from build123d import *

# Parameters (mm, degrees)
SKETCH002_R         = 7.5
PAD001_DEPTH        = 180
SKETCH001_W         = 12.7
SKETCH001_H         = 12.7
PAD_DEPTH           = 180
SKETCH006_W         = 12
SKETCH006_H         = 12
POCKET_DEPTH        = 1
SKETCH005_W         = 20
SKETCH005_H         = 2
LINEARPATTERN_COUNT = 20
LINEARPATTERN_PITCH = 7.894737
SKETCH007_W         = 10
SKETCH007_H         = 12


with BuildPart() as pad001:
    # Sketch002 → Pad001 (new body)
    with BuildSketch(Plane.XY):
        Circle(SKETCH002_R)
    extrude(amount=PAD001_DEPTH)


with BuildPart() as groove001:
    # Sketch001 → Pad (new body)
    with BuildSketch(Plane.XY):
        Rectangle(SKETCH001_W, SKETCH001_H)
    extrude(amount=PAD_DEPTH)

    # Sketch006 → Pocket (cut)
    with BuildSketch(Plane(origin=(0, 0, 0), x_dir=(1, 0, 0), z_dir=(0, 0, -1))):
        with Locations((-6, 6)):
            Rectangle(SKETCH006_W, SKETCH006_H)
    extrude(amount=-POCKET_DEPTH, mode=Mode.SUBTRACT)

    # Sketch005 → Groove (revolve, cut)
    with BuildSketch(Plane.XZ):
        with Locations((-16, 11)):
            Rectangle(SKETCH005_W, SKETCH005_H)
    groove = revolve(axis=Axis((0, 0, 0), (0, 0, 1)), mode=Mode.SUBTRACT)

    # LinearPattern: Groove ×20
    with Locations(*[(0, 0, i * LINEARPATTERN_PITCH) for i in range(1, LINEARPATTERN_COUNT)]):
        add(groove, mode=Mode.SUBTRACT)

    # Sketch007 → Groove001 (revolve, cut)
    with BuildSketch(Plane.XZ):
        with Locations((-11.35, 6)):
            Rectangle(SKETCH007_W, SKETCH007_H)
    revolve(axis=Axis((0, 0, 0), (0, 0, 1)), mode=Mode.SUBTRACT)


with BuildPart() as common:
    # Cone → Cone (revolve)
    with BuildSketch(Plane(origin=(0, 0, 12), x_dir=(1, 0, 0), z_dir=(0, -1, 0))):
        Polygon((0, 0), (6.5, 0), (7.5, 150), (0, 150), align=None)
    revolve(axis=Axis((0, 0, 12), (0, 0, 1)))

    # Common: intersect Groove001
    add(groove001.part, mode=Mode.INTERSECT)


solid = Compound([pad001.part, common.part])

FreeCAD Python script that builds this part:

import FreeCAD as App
import Part
import Sketcher

doc = App.newDocument("Part")
body = doc.addObject("PartDesign::Body", "Body")

# Sketch on XY plane
sketch1 = body.newObject("Sketcher::SketchObject", "Sketch")
sketch1.AttachmentSupport = (doc.getObject("XY_Plane"), [""])
sketch1.MapMode = "FlatFace"
sketch1.addGeometry(Part.Circle(App.Vector(0, 0, 0), App.Vector(0, 0, 1), 7.5), False)
sketch1.addConstraint([
    Sketcher.Constraint("Coincident", 0, 3, -1, 1),
    Sketcher.Constraint("Diameter", 0, 15.0),
])
pad1 = body.newObject("PartDesign::Pad", "Pad")
pad1.Profile = sketch1
pad1.Length = 180
body2 = doc.addObject("PartDesign::Body", "Body001")

# Sketch on XY plane
sketch2 = body2.newObject("Sketcher::SketchObject", "Sketch001")
sketch2.AttachmentSupport = (doc.getObject("XY_Plane001"), [""])
sketch2.MapMode = "FlatFace"
sketch2.addGeometry([
    Part.LineSegment(App.Vector(-6.35, 6.35, 0), App.Vector(-6.35, -6.35, 0)),
    Part.LineSegment(App.Vector(-6.35, -6.35, 0), App.Vector(6.35, -6.35, 0)),
    Part.LineSegment(App.Vector(6.35, -6.35, 0), App.Vector(6.35, 6.35, 0)),
    Part.LineSegment(App.Vector(6.35, 6.35, 0), App.Vector(-6.35, 6.35, 0)),
], False)
sketch2.addConstraint([
    Sketcher.Constraint("Coincident", 0, 2, 1, 1),
    Sketcher.Constraint("Coincident", 1, 2, 2, 1),
    Sketcher.Constraint("Coincident", 2, 2, 3, 1),
    Sketcher.Constraint("Coincident", 3, 2, 0, 1),
    Sketcher.Constraint("Vertical", 0),
    Sketcher.Constraint("Horizontal", 1),
    Sketcher.Constraint("Vertical", 2),
    Sketcher.Constraint("Horizontal", 3),
    Sketcher.Constraint("Symmetric", 0, 2, 2, 2, -1, 1),
    Sketcher.Constraint("Equal", 3, 0),
    Sketcher.Constraint("DistanceX", 1, 1, 1, 2, 12.7),
])
pad2 = body2.newObject("PartDesign::Pad", "Pad001")
pad2.Profile = sketch2
pad2.Length = 180

# Sketch on XY plane
sketch3 = body2.newObject("Sketcher::SketchObject", "Sketch002")
sketch3.AttachmentSupport = (doc.getObject("XY_Plane001"), [""])
sketch3.MapMode = "FlatFace"
sketch3.addGeometry([
    Part.LineSegment(App.Vector(-12, -12, 0), App.Vector(-12, 0, 0)),
    Part.LineSegment(App.Vector(-12, 0, 0), App.Vector(0, 0, 0)),
    Part.LineSegment(App.Vector(0, 0, 0), App.Vector(0, -12, 0)),
    Part.LineSegment(App.Vector(0, -12, 0), App.Vector(-12, -12, 0)),
], False)
sketch3.addConstraint([
    Sketcher.Constraint("Coincident", 0, 2, 1, 1),
    Sketcher.Constraint("Coincident", 1, 2, 2, 1),
    Sketcher.Constraint("Coincident", 2, 2, 3, 1),
    Sketcher.Constraint("Coincident", 3, 2, 0, 1),
    Sketcher.Constraint("Vertical", 0),
    Sketcher.Constraint("Horizontal", 1),
    Sketcher.Constraint("Vertical", 2),
    Sketcher.Constraint("Horizontal", 3),
    Sketcher.Constraint("Coincident", 1, 2, -1, 1),
    Sketcher.Constraint("Equal", 3, 0),
    Sketcher.Constraint("DistanceX", 1, 1, 1, 2, 12.0),
])
pocket1 = body2.newObject("PartDesign::Pocket", "Pocket")
pocket1.Profile = sketch3
pocket1.Length = 1
pocket1.Reversed = True

# Sketch on XZ plane
sketch4 = body2.newObject("Sketcher::SketchObject", "Sketch003")
sketch4.AttachmentSupport = (doc.getObject("XZ_Plane001"), [""])
sketch4.MapMode = "FlatFace"
sketch4.addGeometry([
    Part.LineSegment(App.Vector(-26, 12, 0), App.Vector(-26, 10, 0)),
    Part.LineSegment(App.Vector(-26, 10, 0), App.Vector(-6, 10, 0)),
    Part.LineSegment(App.Vector(-6, 10, 0), App.Vector(-6, 12, 0)),
    Part.LineSegment(App.Vector(-6, 12, 0), App.Vector(-26, 12, 0)),
], False)
sketch4.addConstraint([
    Sketcher.Constraint("Coincident", 0, 2, 1, 1),
    Sketcher.Constraint("Coincident", 1, 2, 2, 1),
    Sketcher.Constraint("Coincident", 2, 2, 3, 1),
    Sketcher.Constraint("Coincident", 3, 2, 0, 1),
    Sketcher.Constraint("Vertical", 0),
    Sketcher.Constraint("Horizontal", 1),
    Sketcher.Constraint("Vertical", 2),
    Sketcher.Constraint("Horizontal", 3),
    Sketcher.Constraint("DistanceX", 1, 1, 1, 2, 20.0),
    Sketcher.Constraint("DistanceY", 0, 2, 0, 1, 2.0),
    Sketcher.Constraint("DistanceX", 0, 2, -1, 1, 26.0),
    Sketcher.Constraint("DistanceY", -1, 1, 0, 2, 10.0),
])
groove = body2.newObject("PartDesign::Groove", "Groove")
groove.Profile = sketch4
groove.ReferenceAxis = (sketch4, ["V_Axis"])
groove.Angle = 360
doc.recompute()

linearpattern = body2.newObject("PartDesign::LinearPattern", "LinearPattern")
linearpattern.Originals = [groove]
linearpattern.Direction = (doc.getObject("Z_Axis001"), [""])
linearpattern.Mode = "offset"
linearpattern.Offset = 7.894737
linearpattern.Occurrences = 20
body2.Tip = linearpattern

# Sketch on XZ plane
sketch5 = body2.newObject("Sketcher::SketchObject", "Sketch004")
sketch5.AttachmentSupport = (doc.getObject("XZ_Plane001"), [""])
sketch5.MapMode = "FlatFace"
sketch5.addGeometry([
    Part.LineSegment(App.Vector(-16.35, 12, 0), App.Vector(-16.35, 0, 0)),
    Part.LineSegment(App.Vector(-16.35, 0, 0), App.Vector(-6.35, 0, 0)),
    Part.LineSegment(App.Vector(-6.35, 0, 0), App.Vector(-6.35, 12, 0)),
    Part.LineSegment(App.Vector(-6.35, 12, 0), App.Vector(-16.35, 12, 0)),
], False)
sketch5.addConstraint([
    Sketcher.Constraint("Coincident", 0, 2, 1, 1),
    Sketcher.Constraint("Coincident", 1, 2, 2, 1),
    Sketcher.Constraint("Coincident", 2, 2, 3, 1),
    Sketcher.Constraint("Coincident", 3, 2, 0, 1),
    Sketcher.Constraint("Vertical", 0),
    Sketcher.Constraint("Horizontal", 1),
    Sketcher.Constraint("Vertical", 2),
    Sketcher.Constraint("Horizontal", 3),
    Sketcher.Constraint("PointOnObject", 0, 2, -1),
    Sketcher.Constraint("DistanceX", 1, 1, 1, 2, 10.0),
    Sketcher.Constraint("DistanceY", 0, 2, 0, 1, 12.0),
    Sketcher.Constraint("DistanceX", 0, 2, -1, 1, 16.35),
])
groove2 = body2.newObject("PartDesign::Groove", "Groove001")
groove2.Profile = sketch5
groove2.ReferenceAxis = (sketch5, ["V_Axis"])
groove2.Angle = 360
body3 = doc.addObject("PartDesign::Body", "Body002")

# Sketch on XZ plane
sketch6 = body3.newObject("Sketcher::SketchObject", "Sketch005")
sketch6.AttachmentSupport = (doc.getObject("XZ_Plane002"), [""])
sketch6.MapMode = "FlatFace"
sketch6.addGeometry([
    Part.LineSegment(App.Vector(0, 12, 0), App.Vector(6.5, 12, 0)),
    Part.LineSegment(App.Vector(6.5, 12, 0), App.Vector(7.5, 162, 0)),
    Part.LineSegment(App.Vector(7.5, 162, 0), App.Vector(0, 162, 0)),
    Part.LineSegment(App.Vector(0, 162, 0), App.Vector(0, 12, 0)),
], False)
sketch6.addConstraint([
    Sketcher.Constraint("Coincident", 0, 2, 1, 1),
    Sketcher.Constraint("Coincident", 1, 2, 2, 1),
    Sketcher.Constraint("Coincident", 2, 2, 3, 1),
    Sketcher.Constraint("Coincident", 3, 2, 0, 1),
    Sketcher.Constraint("Horizontal", 0),
    Sketcher.Constraint("Horizontal", 2),
    Sketcher.Constraint("Vertical", 3),
    Sketcher.Constraint("PointOnObject", 2, 2, -2),
    Sketcher.Constraint("DistanceY", 3, 2, 3, 1, 150.0),
    Sketcher.Constraint("DistanceX", 0, 1, 0, 2, 6.5),
    Sketcher.Constraint("DistanceX", 2, 2, 2, 1, 7.5),
    Sketcher.Constraint("DistanceY", -1, 1, 0, 2, 12.0),
])
revolution = body3.newObject("PartDesign::Revolution", "Revolution")
revolution.Profile = sketch6
revolution.ReferenceAxis = (sketch6, ["V_Axis"])
revolution.Angle = 360
doc.recompute()

boolean = body3.newObject("PartDesign::Boolean", "Boolean")
boolean.Type = "Common"
boolean.addObjects([body2])

doc.recompute()
